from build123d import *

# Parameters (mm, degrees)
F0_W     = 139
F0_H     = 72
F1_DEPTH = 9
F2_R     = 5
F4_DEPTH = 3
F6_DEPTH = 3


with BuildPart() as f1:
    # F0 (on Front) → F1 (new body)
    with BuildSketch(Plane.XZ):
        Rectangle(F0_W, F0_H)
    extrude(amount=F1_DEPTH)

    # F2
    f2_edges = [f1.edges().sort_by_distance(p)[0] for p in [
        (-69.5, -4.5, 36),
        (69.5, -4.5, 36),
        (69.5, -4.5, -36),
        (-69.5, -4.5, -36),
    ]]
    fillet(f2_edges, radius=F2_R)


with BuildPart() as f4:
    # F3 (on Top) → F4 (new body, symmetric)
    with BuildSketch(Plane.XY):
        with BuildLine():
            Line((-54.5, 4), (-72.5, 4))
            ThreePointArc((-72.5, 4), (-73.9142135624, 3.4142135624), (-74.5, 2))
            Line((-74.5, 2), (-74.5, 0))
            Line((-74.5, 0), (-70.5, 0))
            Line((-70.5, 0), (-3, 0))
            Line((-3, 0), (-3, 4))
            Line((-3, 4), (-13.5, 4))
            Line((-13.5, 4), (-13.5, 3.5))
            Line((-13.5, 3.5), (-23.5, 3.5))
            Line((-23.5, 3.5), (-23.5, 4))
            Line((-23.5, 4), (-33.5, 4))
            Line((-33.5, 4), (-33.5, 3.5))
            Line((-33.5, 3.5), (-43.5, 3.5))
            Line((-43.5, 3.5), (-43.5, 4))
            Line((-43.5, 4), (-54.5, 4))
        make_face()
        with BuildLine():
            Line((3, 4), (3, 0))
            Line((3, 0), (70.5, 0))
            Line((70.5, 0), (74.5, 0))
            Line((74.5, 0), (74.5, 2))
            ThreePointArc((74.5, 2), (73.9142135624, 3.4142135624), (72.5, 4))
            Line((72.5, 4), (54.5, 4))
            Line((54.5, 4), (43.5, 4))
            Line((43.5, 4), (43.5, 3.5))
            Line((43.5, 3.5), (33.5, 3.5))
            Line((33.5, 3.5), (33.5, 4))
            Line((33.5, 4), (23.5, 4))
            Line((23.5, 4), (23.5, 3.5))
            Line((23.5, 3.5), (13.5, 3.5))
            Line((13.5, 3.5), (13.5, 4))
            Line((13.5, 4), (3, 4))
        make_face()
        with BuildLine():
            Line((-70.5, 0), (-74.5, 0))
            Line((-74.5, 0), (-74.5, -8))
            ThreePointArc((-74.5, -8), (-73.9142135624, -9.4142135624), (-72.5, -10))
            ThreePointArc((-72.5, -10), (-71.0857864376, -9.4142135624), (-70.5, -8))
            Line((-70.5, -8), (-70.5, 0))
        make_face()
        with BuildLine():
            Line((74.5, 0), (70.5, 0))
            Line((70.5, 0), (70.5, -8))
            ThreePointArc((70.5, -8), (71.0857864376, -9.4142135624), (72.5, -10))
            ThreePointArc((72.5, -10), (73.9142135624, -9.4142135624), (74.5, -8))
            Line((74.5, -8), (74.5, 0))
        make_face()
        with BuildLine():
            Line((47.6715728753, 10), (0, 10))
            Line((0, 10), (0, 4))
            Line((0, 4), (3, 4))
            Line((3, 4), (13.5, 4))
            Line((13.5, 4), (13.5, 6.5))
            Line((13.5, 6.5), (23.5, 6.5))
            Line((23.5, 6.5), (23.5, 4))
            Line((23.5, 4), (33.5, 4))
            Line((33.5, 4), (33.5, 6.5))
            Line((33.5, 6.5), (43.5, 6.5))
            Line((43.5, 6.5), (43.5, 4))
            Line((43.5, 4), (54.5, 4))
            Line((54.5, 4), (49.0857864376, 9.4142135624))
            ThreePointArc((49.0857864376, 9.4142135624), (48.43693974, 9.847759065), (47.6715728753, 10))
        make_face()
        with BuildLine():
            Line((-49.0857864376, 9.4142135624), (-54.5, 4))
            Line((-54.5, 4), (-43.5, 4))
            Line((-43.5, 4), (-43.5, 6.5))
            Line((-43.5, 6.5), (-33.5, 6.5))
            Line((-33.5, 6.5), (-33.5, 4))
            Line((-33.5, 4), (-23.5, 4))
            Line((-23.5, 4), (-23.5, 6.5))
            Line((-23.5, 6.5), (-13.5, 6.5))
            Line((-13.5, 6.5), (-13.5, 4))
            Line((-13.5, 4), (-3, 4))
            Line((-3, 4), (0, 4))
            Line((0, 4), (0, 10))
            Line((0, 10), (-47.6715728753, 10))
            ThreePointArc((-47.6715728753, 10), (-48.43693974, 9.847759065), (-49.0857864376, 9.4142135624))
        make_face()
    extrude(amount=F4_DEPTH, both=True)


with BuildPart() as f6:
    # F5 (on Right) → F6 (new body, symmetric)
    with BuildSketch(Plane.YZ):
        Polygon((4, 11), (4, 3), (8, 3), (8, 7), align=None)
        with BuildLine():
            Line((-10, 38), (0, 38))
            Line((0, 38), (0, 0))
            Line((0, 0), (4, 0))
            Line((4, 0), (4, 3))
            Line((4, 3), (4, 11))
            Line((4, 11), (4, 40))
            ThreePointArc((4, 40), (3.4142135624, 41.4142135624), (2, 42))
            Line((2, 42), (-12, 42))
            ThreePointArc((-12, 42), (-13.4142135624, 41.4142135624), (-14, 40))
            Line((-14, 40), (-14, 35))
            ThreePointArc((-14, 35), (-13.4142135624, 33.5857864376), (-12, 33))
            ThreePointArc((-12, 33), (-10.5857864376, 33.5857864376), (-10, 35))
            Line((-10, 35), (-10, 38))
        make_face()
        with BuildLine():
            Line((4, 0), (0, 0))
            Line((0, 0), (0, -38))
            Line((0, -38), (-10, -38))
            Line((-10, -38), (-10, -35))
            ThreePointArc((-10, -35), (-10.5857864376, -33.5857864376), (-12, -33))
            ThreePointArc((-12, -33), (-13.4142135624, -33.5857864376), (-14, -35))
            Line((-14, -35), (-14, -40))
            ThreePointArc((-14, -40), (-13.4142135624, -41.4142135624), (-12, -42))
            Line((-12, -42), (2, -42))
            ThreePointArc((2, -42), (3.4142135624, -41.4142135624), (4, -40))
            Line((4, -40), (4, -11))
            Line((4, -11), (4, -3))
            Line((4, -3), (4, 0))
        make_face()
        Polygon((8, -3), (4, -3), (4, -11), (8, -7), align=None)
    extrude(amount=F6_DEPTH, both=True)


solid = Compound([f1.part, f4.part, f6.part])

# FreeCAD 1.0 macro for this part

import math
import FreeCAD as App
import Part
import Sketcher

V = App.Vector
Q = App.Units.Quantity


def edges_at(feature, points):
    """Names of the edges that pass closest to the given points."""
    edges = feature.Shape.Edges
    near = lambda p: min(range(len(edges)), key=lambda i: edges[i].distToShape(Part.Vertex(*p))[0])
    return sorted({f"Edge{near(p) + 1}" for p in points})


def add_polygon(sketch, points):
    """Adds a closed chain of lines whose ends are joined by coincident constraints."""
    first, n = sketch.GeometryCount, len(points)
    for a, b in zip(points, points[1:] + points[:1]):
        sketch.addGeometry(Part.LineSegment(App.Vector(*a, 0), App.Vector(*b, 0)), False)
    for i in range(n):
        sketch.addConstraint(Sketcher.Constraint("Coincident", first + i, 2, first + (i + 1) % n, 1))

doc = App.newDocument("Part")
body = doc.addObject("PartDesign::Body", "Body")

# Sketch on XZ plane
sketch1 = body.newObject("Sketcher::SketchObject", "Sketch")
sketch1.AttachmentSupport = (doc.getObject("XZ_Plane"), [""])
sketch1.MapMode = "FlatFace"
add_polygon(sketch1, [(-70, 36), (-70, -36), (70, -36), (70, 36)])  # lines 0-3
sketch1.addConstraint(Sketcher.Constraint("Vertical", 0))
sketch1.addConstraint(Sketcher.Constraint("Horizontal", 1))
sketch1.addConstraint(Sketcher.Constraint("Vertical", 2))
sketch1.addConstraint(Sketcher.Constraint("Horizontal", 3))
sketch1.addConstraint(Sketcher.Constraint("Symmetric", 0, 2, 2, 2, -1, 1))
sketch1.addConstraint(Sketcher.Constraint("DistanceX", 1, 1, 1, 2, Q("139 mm")))
sketch1.addConstraint(Sketcher.Constraint("DistanceY", 0, 2, 0, 1, Q("72 mm")))
pad1 = body.newObject("PartDesign::Pad", "Pad")
pad1.Profile = sketch1
pad1.Length = 9
doc.recompute()

fillet = body.newObject("PartDesign::Fillet", "Fillet")
fillet.Base = (pad1, edges_at(pad1, [
    (-69.5, -4.5, 36),
    (69.5, -4.5, 36),
    (69.5, -4.5, -36),
    (-69.5, -4.5, -36),
]))
fillet.Radius = 5
body2 = doc.addObject("PartDesign::Body", "Body001")

# Sketch on XY plane
sketch2 = body2.newObject("Sketcher::SketchObject", "Sketch001")
sketch2.AttachmentSupport = (doc.getObject("XY_Plane001"), [""])
sketch2.MapMode = "FlatFace"
sketch2.addGeometry(Part.ArcOfCircle(Part.Circle(V(-72.5, 2, 0), V(0, 0, 1), 2), math.radians(90), math.radians(180)), False)  # 0
sketch2.addGeometry(Part.LineSegment(V(-74.5, 2, 0), V(-74.5, -8, 0)), False)  # 1
sketch2.addGeometry(Part.ArcOfCircle(Part.Circle(V(-72.5, -8, 0), V(0, 0, 1), 2), math.radians(180), math.radians(270)), False)  # 2
sketch2.addGeometry(Part.ArcOfCircle(Part.Circle(V(-72.5, -8, 0), V(0, 0, 1), 2), math.radians(-90), math.radians(0)), False)  # 3
sketch2.addGeometry(Part.LineSegment(V(-70.5, -8, 0), V(-70.5, 0, 0)), False)  # 4
sketch2.addGeometry(Part.LineSegment(V(-70.5, 0, 0), V(-3, 0, 0)), False)  # 5
sketch2.addGeometry(Part.LineSegment(V(-3, 0, 0), V(-3, 4, 0)), False)  # 6
sketch2.addGeometry(Part.LineSegment(V(-3, 4, 0), V(3, 4, 0)), False)  # 7
sketch2.addGeometry(Part.LineSegment(V(3, 4, 0), V(3, 0, 0)), False)  # 8
sketch2.addGeometry(Part.LineSegment(V(3, 0, 0), V(70.5, 0, 0)), False)  # 9
sketch2.addGeometry(Part.LineSegment(V(70.5, 0, 0), V(70.5, -8, 0)), False)  # 10
sketch2.addGeometry(Part.ArcOfCircle(Part.Circle(V(72.5, -8, 0), V(0, 0, 1), 2), math.radians(180), math.radians(270)), False)  # 11
sketch2.addGeometry(Part.ArcOfCircle(Part.Circle(V(72.5, -8, 0), V(0, 0, 1), 2), math.radians(-90), math.radians(0)), False)  # 12
sketch2.addGeometry(Part.LineSegment(V(74.5, -8, 0), V(74.5, 2, 0)), False)  # 13
sketch2.addGeometry(Part.ArcOfCircle(Part.Circle(V(72.5, 2, 0), V(0, 0, 1), 2), math.radians(0), math.radians(90)), False)  # 14
sketch2.addGeometry(Part.LineSegment(V(72.5, 4, 0), V(54.5, 4, 0)), False)  # 15
sketch2.addGeometry(Part.LineSegment(V(54.5, 4, 0), V(49.1, 9.4, 0)), False)  # 16
sketch2.addGeometry(Part.ArcOfCircle(Part.Circle(V(47.7, 8, 0), V(0, 0, 1), 2), math.radians(45), math.radians(90)), False)  # 17
sketch2.addGeometry(Part.LineSegment(V(47.7, 10, 0), V(-47.7, 10, 0)), False)  # 18
sketch2.addGeometry(Part.ArcOfCircle(Part.Circle(V(-47.7, 8, 0), V(0, 0, 1), 2), math.radians(90), math.radians(135)), False)  # 19
sketch2.addGeometry(Part.LineSegment(V(-49.1, 9.4, 0), V(-54.5, 4, 0)), False)  # 20
sketch2.addGeometry(Part.LineSegment(V(-54.5, 4, 0), V(-72.5, 4, 0)), False)  # 21
add_polygon(sketch2, [(-13.5, 3.5), (-23.5, 3.5), (-23.5, 6.5), (-13.5, 6.5)])  # lines 22-25
add_polygon(sketch2, [(-33.5, 3.5), (-43.5, 3.5), (-43.5, 6.5), (-33.5, 6.5)])  # lines 26-29
add_polygon(sketch2, [(23.5, 6.5), (23.5, 3.5), (13.5, 3.5), (13.5, 6.5)])  # lines 30-33
add_polygon(sketch2, [(43.5, 3.5), (33.5, 3.5), (33.5, 6.5), (43.5, 6.5)])  # lines 34-37
sketch2.addConstraint(Sketcher.Constraint("Tangent", 0, 2, 1, 1))
sketch2.addConstraint(Sketcher.Constraint("Tangent", 1, 2, 2, 1))
sketch2.addConstraint(Sketcher.Constraint("Tangent", 2, 2, 3, 1))
sketch2.addConstraint(Sketcher.Constraint("Tangent", 3, 2, 4, 1))
sketch2.addConstraint(Sketcher.Constraint("Coincident", 4, 2, 5, 1))
sketch2.addConstraint(Sketcher.Constraint("Coincident", 5, 2, 6, 1))
sketch2.addConstraint(Sketcher.Constraint("Coincident", 6, 2, 7, 1))
sketch2.addConstraint(Sketcher.Constraint("Coincident", 7, 2, 8, 1))
sketch2.addConstraint(Sketcher.Constraint("Coincident", 8, 2, 9, 1))
sketch2.addConstraint(Sketcher.Constraint("Coincident", 9, 2, 10, 1))
sketch2.addConstraint(Sketcher.Constraint("Tangent", 10, 2, 11, 1))
sketch2.addConstraint(Sketcher.Constraint("Tangent", 11, 2, 12, 1))
sketch2.addConstraint(Sketcher.Constraint("Tangent", 12, 2, 13, 1))
sketch2.addConstraint(Sketcher.Constraint("Tangent", 13, 2, 14, 1))
sketch2.addConstraint(Sketcher.Constraint("Tangent", 14, 2, 15, 1))
sketch2.addConstraint(Sketcher.Constraint("Coincident", 15, 2, 16, 1))
sketch2.addConstraint(Sketcher.Constraint("Tangent", 16, 2, 17, 1))
sketch2.addConstraint(Sketcher.Constraint("Tangent", 17, 2, 18, 1))
sketch2.addConstraint(Sketcher.Constraint("Tangent", 18, 2, 19, 1))
sketch2.addConstraint(Sketcher.Constraint("Tangent", 19, 2, 20, 1))
sketch2.addConstraint(Sketcher.Constraint("Coincident", 20, 2, 21, 1))
sketch2.addConstraint(Sketcher.Constraint("Tangent", 21, 2, 0, 1))
sketch2.addConstraint(Sketcher.Constraint("Vertical", 1))
sketch2.addConstraint(Sketcher.Constraint("Vertical", 4))
sketch2.addConstraint(Sketcher.Constraint("Horizontal", 5))
sketch2.addConstraint(Sketcher.Constraint("Vertical", 6))
sketch2.addConstraint(Sketcher.Constraint("Horizontal", 7))
sketch2.addConstraint(Sketcher.Constraint("Vertical", 8))
sketch2.addConstraint(Sketcher.Constraint("Horizontal", 9))
sketch2.addConstraint(Sketcher.Constraint("Vertical", 10))
sketch2.addConstraint(Sketcher.Constraint("Vertical", 13))
sketch2.addConstraint(Sketcher.Constraint("Horizontal", 15))
sketch2.addConstraint(Sketcher.Constraint("Horizontal", 18))
sketch2.addConstraint(Sketcher.Constraint("Horizontal", 21))
sketch2.addConstraint(Sketcher.Constraint("Horizontal", 22))
sketch2.addConstraint(Sketcher.Constraint("Vertical", 23))
sketch2.addConstraint(Sketcher.Constraint("Horizontal", 24))
sketch2.addConstraint(Sketcher.Constraint("Vertical", 25))
sketch2.addConstraint(Sketcher.Constraint("Horizontal", 26))
sketch2.addConstraint(Sketcher.Constraint("Vertical", 27))
sketch2.addConstraint(Sketcher.Constraint("Horizontal", 28))
sketch2.addConstraint(Sketcher.Constraint("Vertical", 29))
sketch2.addConstraint(Sketcher.Constraint("Vertical", 30))
sketch2.addConstraint(Sketcher.Constraint("Horizontal", 31))
sketch2.addConstraint(Sketcher.Constraint("Vertical", 32))
sketch2.addConstraint(Sketcher.Constraint("Horizontal", 33))
sketch2.addConstraint(Sketcher.Constraint("Horizontal", 34))
sketch2.addConstraint(Sketcher.Constraint("Vertical", 35))
sketch2.addConstraint(Sketcher.Constraint("Horizontal", 36))
sketch2.addConstraint(Sketcher.Constraint("Vertical", 37))
sketch2.addConstraint(Sketcher.Constraint("Equal", 0, 2))
sketch2.addConstraint(Sketcher.Constraint("Equal", 2, 3))
sketch2.addConstraint(Sketcher.Constraint("Equal", 3, 11))
sketch2.addConstraint(Sketcher.Constraint("Equal", 11, 12))
sketch2.addConstraint(Sketcher.Constraint("Equal", 12, 14))
sketch2.addConstraint(Sketcher.Constraint("Equal", 14, 17))
sketch2.addConstraint(Sketcher.Constraint("Equal", 17, 19))
sketch2.addConstraint(Sketcher.Constraint("Symmetric", 5, 2, 8, 2, -1, 1))
sketch2.addConstraint(Sketcher.Constraint("Symmetric", 2, 3, 11, 3, -2))
sketch2.addConstraint(Sketcher.Constraint("Symmetric", 16, 2, 19, 2, -2))
sketch2.addConstraint(Sketcher.Constraint("Symmetric", 22, 2, 30, 2, -2))
sketch2.addConstraint(Sketcher.Constraint("Symmetric", 24, 2, 32, 2, -2))
sketch2.addConstraint(Sketcher.Constraint("Symmetric", 29, 2, 34, 2, -2))
sketch2.addConstraint(Sketcher.Constraint("Symmetric", 27, 2, 36, 2, -2))
sketch2.addConstraint(Sketcher.Constraint("PointOnObject", 4, 2, -1))
sketch2.addConstraint(Sketcher.Constraint("Perpendicular", 16, 20))
sketch2.addConstraint(Sketcher.Constraint("Horizontal", 0, 3, 14, 3))
sketch2.addConstraint(Sketcher.Constraint("Horizontal", 7, 2, 14, 2))
sketch2.addConstraint(Sketcher.Constraint("Horizontal", 25, 2, 26, 2))
sketch2.addConstraint(Sketcher.Constraint("Horizontal", 24, 2, 27, 2))
sketch2.addConstraint(Sketcher.Constraint("Vertical", 3, 3, 2, 2))
sketch2.addConstraint(Sketcher.Constraint("Vertical", 14, 3, 11, 2))
sketch2.addConstraint(Sketcher.Constraint("Equal", 24, 26))
sketch2.addConstraint(Sketcher.Constraint("Equal", 36, 1))
sketch2.addConstraint(Sketcher.Constraint("Radius", 0, Q("2 mm")))
sketch2.addConstraint(Sketcher.Constraint("DistanceX", 7, 1, 7, 2, Q("6 mm")))
sketch2.addConstraint(Sketcher.Constraint("DistanceX", 15, 2, 15, 1, Q("18 mm")))
sketch2.addConstraint(Sketcher.Constraint("DistanceX", 22, 2, 22, 1, Q("10 mm")))
sketch2.addConstraint(Sketcher.Constraint("DistanceY", 4, 1, 4, 2, Q("8 mm")))
sketch2.addConstraint(Sketcher.Constraint("DistanceY", 23, 1, 23, 2, Q("3 mm")))
sketch2.addConstraint(Sketcher.Constraint("DistanceX", 5, 1, 5, 2, Q("67.5 mm")))
sketch2.addConstraint(Sketcher.Constraint("DistanceY", -1, 1, 17, 3, Q("8 mm")))
sketch2.addConstraint(Sketcher.Constraint("DistanceX", 20, 2, 26, 2, Q("11 mm")))
sketch2.addConstraint(Sketcher.Constraint("DistanceX", 26, 2, 22, 2, Q("20 mm")))
sketch2.addConstraint(Sketcher.Constraint("DistanceY", -1, 1, 22, 2, Q("3.5 mm")))
pad2 = body2.newObject("PartDesign::Pad", "Pad001")
pad2.Profile = sketch2
pad2.Length = 6
pad2.Midplane = True
body3 = doc.addObject("PartDesign::Body", "Body002")

# Sketch on YZ plane
sketch3 = body3.newObject("Sketcher::SketchObject", "Sketch002")
sketch3.AttachmentSupport = (doc.getObject("YZ_Plane002"), [""])
sketch3.MapMode = "FlatFace"
sketch3.addGeometry(Part.LineSegment(V(4, 3, 0), V(8, 3, 0)), False)
sketch3.addGeometry(Part.LineSegment(V(8, 3, 0), V(8, 7, 0)), False)
sketch3.addGeometry(Part.LineSegment(V(8, 7, 0), V(4, 11, 0)), False)
sketch3.addGeometry(Part.LineSegment(V(4, 11, 0), V(4, 40, 0)), False)
sketch3.addGeometry(Part.ArcOfCircle(Part.Circle(V(2, 40, 0), V(0, 0, 1), 2), math.radians(0), math.radians(90)), False)
sketch3.addGeometry(Part.LineSegment(V(2, 42, 0), V(-12, 42, 0)), False)
sketch3.addGeometry(Part.ArcOfCircle(Part.Circle(V(-12, 40, 0), V(0, 0, 1), 2), math.radians(90), math.radians(180)), False)
sketch3.addGeometry(Part.LineSegment(V(-14, 40, 0), V(-14, 35, 0)), False)
sketch3.addGeometry(Part.ArcOfCircle(Part.Circle(V(-12, 35, 0), V(0, 0, 1), 2), math.radians(180), math.radians(270)), False)
sketch3.addGeometry(Part.ArcOfCircle(Part.Circle(V(-12, 35, 0), V(0, 0, 1), 2), math.radians(-90), math.radians(0)), False)
sketch3.addGeometry(Part.LineSegment(V(-10, 35, 0), V(-10, 38, 0)), False)
sketch3.addGeometry(Part.LineSegment(V(-10, 38, 0), V(0, 38, 0)), False)
sketch3.addGeometry(Part.LineSegment(V(0, 38, 0), V(0, -38, 0)), False)
sketch3.addGeometry(Part.LineSegment(V(0, -38, 0), V(-10, -38, 0)), False)
sketch3.addGeometry(Part.LineSegment(V(-10, -38, 0), V(-10, -35, 0)), False)
sketch3.addGeometry(Part.ArcOfCircle(Part.Circle(V(-12, -35, 0), V(0, 0, 1), 2), math.radians(0), math.radians(90)), False)
sketch3.addGeometry(Part.ArcOfCircle(Part.Circle(V(-12, -35, 0), V(0, 0, 1), 2), math.radians(90), math.radians(180)), False)
sketch3.addGeometry(Part.LineSegment(V(-14, -35, 0), V(-14, -40, 0)), False)
sketch3.addGeometry(Part.ArcOfCircle(Part.Circle(V(-12, -40, 0), V(0, 0, 1), 2), math.radians(180), math.radians(270)), False)
sketch3.addGeometry(Part.LineSegment(V(-12, -42, 0), V(2, -42, 0)), False)
sketch3.addGeometry(Part.ArcOfCircle(Part.Circle(V(2, -40, 0), V(0, 0, 1), 2), math.radians(-90), math.radians(0)), False)
sketch3.addGeometry(Part.LineSegment(V(4, -40, 0), V(4, -11, 0)), False)
sketch3.addGeometry(Part.LineSegment(V(4, -11, 0), V(8, -7, 0)), False)
sketch3.addGeometry(Part.LineSegment(V(8, -7, 0), V(8, -3, 0)), False)
sketch3.addGeometry(Part.LineSegment(V(8, -3, 0), V(4, -3, 0)), False)
sketch3.addGeometry(Part.LineSegment(V(4, -3, 0), V(4, 3, 0)), False)
sketch3.addConstraint(Sketcher.Constraint("Coincident", 0, 2, 1, 1))
sketch3.addConstraint(Sketcher.Constraint("Coincident", 1, 2, 2, 1))
sketch3.addConstraint(Sketcher.Constraint("Coincident", 2, 2, 3, 1))
sketch3.addConstraint(Sketcher.Constraint("Tangent", 3, 2, 4, 1))
sketch3.addConstraint(Sketcher.Constraint("Tangent", 4, 2, 5, 1))
sketch3.addConstraint(Sketcher.Constraint("Tangent", 5, 2, 6, 1))
sketch3.addConstraint(Sketcher.Constraint("Tangent", 6, 2, 7, 1))
sketch3.addConstraint(Sketcher.Constraint("Tangent", 7, 2, 8, 1))
sketch3.addConstraint(Sketcher.Constraint("Tangent", 8, 2, 9, 1))
sketch3.addConstraint(Sketcher.Constraint("Tangent", 9, 2, 10, 1))
sketch3.addConstraint(Sketcher.Constraint("Coincident", 10, 2, 11, 1))
sketch3.addConstraint(Sketcher.Constraint("Coincident", 11, 2, 12, 1))
sketch3.addConstraint(Sketcher.Constraint("Coincident", 12, 2, 13, 1))
sketch3.addConstraint(Sketcher.Constraint("Coincident", 13, 2, 14, 1))
sketch3.addConstraint(Sketcher.Constraint("Tangent", 14, 2, 15, 1))
sketch3.addConstraint(Sketcher.Constraint("Tangent", 15, 2, 16, 1))
sketch3.addConstraint(Sketcher.Constraint("Tangent", 16, 2, 17, 1))
sketch3.addConstraint(Sketcher.Constraint("Tangent", 17, 2, 18, 1))
sketch3.addConstraint(Sketcher.Constraint("Tangent", 18, 2, 19, 1))
sketch3.addConstraint(Sketcher.Constraint("Tangent", 19, 2, 20, 1))
sketch3.addConstraint(Sketcher.Constraint("Tangent", 20, 2, 21, 1))
sketch3.addConstraint(Sketcher.Constraint("Coincident", 21, 2, 22, 1))
sketch3.addConstraint(Sketcher.Constraint("Coincident", 22, 2, 23, 1))
sketch3.addConstraint(Sketcher.Constraint("Coincident", 23, 2, 24, 1))
sketch3.addConstraint(Sketcher.Constraint("Coincident", 24, 2, 25, 1))
sketch3.addConstraint(Sketcher.Constraint("Coincident", 25, 2, 0, 1))
sketch3.addConstraint(Sketcher.Constraint("Horizontal", 0))
sketch3.addConstraint(Sketcher.Constraint("Vertical", 1))
sketch3.addConstraint(Sketcher.Constraint("Vertical", 3))
sketch3.addConstraint(Sketcher.Constraint("Horizontal", 5))
sketch3.addConstraint(Sketcher.Constraint("Vertical", 7))
sketch3.addConstraint(Sketcher.Constraint("Vertical", 10))
sketch3.addConstraint(Sketcher.Constraint("Horizontal", 11))
sketch3.addConstraint(Sketcher.Constraint("Vertical", 12))
sketch3.addConstraint(Sketcher.Constraint("Horizontal", 13))
sketch3.addConstraint(Sketcher.Constraint("Vertical", 14))
sketch3.addConstraint(Sketcher.Constraint("Vertical", 17))
sketch3.addConstraint(Sketcher.Constraint("Horizontal", 19))
sketch3.addConstraint(Sketcher.Constraint("Vertical", 21))
sketch3.addConstraint(Sketcher.Constraint("Vertical", 23))
sketch3.addConstraint(Sketcher.Constraint("Horizontal", 24))
sketch3.addConstraint(Sketcher.Constraint("Vertical", 25))
sketch3.addConstraint(Sketcher.Constraint("Equal", 4, 6))
sketch3.addConstraint(Sketcher.Constraint("Equal", 6, 8))
sketch3.addConstraint(Sketcher.Constraint("Equal", 8, 9))
sketch3.addConstraint(Sketcher.Constraint("Equal", 9, 15))
sketch3.addConstraint(Sketcher.Constraint("Equal", 15, 16))
sketch3.addConstraint(Sketcher.Constraint("Equal", 16, 18))
sketch3.addConstraint(Sketcher.Constraint("Equal", 18, 20))
sketch3.addConstraint(Sketcher.Constraint("Symmetric", 11, 2, 12, 2, -1, 1))
sketch3.addConstraint(Sketcher.Constraint("Symmetric", 8, 3, 15, 3, -1))
sketch3.addConstraint(Sketcher.Constraint("Symmetric", 4, 3, 20, 3, -1))
sketch3.addConstraint(Sketcher.Constraint("Symmetric", 1, 2, 22, 2, -1))
sketch3.addConstraint(Sketcher.Constraint("Perpendicular", 2, 22))
sketch3.addConstraint(Sketcher.Constraint("Vertical", 5, 2, 8, 2))
sketch3.addConstraint(Sketcher.Constraint("Vertical", 8, 2, 15, 2))
sketch3.addConstraint(Sketcher.Constraint("Vertical", 21, 2, 24, 2))
sketch3.addConstraint(Sketcher.Constraint("Equal", 24, 1))
sketch3.addConstraint(Sketcher.Constraint("Equal", 3, 21))
sketch3.addConstraint(Sketcher.Constraint("Equal", 1, 23))
sketch3.addConstraint(Sketcher.Constraint("Radius", 4, Q("2 mm")))
sketch3.addConstraint(Sketcher.Constraint("DistanceX", 0, 1, 0, 2, Q("4 mm")))
sketch3.addConstraint(Sketcher.Constraint("DistanceX", 5, 2, 5, 1, Q("14 mm")))
sketch3.addConstraint(Sketcher.Constraint("DistanceX", 11, 1, 11, 2, Q("10 mm")))
sketch3.addConstraint(Sketcher.Constraint("DistanceY", 3, 1, 3, 2, Q("29 mm")))
sketch3.addConstraint(Sketcher.Constraint("DistanceY", 7, 2, 7, 1, Q("5 mm")))
sketch3.addConstraint(Sketcher.Constraint("DistanceY", 10, 1, 10, 2, Q("3 mm")))
sketch3.addConstraint(Sketcher.Constraint("DistanceY", 12, 2, 12, 1, Q("76 mm")))
pad3 = body3.newObject("PartDesign::Pad", "Pad002")
pad3.Profile = sketch3
pad3.Length = 6
pad3.Midplane = True

doc.recompute()
